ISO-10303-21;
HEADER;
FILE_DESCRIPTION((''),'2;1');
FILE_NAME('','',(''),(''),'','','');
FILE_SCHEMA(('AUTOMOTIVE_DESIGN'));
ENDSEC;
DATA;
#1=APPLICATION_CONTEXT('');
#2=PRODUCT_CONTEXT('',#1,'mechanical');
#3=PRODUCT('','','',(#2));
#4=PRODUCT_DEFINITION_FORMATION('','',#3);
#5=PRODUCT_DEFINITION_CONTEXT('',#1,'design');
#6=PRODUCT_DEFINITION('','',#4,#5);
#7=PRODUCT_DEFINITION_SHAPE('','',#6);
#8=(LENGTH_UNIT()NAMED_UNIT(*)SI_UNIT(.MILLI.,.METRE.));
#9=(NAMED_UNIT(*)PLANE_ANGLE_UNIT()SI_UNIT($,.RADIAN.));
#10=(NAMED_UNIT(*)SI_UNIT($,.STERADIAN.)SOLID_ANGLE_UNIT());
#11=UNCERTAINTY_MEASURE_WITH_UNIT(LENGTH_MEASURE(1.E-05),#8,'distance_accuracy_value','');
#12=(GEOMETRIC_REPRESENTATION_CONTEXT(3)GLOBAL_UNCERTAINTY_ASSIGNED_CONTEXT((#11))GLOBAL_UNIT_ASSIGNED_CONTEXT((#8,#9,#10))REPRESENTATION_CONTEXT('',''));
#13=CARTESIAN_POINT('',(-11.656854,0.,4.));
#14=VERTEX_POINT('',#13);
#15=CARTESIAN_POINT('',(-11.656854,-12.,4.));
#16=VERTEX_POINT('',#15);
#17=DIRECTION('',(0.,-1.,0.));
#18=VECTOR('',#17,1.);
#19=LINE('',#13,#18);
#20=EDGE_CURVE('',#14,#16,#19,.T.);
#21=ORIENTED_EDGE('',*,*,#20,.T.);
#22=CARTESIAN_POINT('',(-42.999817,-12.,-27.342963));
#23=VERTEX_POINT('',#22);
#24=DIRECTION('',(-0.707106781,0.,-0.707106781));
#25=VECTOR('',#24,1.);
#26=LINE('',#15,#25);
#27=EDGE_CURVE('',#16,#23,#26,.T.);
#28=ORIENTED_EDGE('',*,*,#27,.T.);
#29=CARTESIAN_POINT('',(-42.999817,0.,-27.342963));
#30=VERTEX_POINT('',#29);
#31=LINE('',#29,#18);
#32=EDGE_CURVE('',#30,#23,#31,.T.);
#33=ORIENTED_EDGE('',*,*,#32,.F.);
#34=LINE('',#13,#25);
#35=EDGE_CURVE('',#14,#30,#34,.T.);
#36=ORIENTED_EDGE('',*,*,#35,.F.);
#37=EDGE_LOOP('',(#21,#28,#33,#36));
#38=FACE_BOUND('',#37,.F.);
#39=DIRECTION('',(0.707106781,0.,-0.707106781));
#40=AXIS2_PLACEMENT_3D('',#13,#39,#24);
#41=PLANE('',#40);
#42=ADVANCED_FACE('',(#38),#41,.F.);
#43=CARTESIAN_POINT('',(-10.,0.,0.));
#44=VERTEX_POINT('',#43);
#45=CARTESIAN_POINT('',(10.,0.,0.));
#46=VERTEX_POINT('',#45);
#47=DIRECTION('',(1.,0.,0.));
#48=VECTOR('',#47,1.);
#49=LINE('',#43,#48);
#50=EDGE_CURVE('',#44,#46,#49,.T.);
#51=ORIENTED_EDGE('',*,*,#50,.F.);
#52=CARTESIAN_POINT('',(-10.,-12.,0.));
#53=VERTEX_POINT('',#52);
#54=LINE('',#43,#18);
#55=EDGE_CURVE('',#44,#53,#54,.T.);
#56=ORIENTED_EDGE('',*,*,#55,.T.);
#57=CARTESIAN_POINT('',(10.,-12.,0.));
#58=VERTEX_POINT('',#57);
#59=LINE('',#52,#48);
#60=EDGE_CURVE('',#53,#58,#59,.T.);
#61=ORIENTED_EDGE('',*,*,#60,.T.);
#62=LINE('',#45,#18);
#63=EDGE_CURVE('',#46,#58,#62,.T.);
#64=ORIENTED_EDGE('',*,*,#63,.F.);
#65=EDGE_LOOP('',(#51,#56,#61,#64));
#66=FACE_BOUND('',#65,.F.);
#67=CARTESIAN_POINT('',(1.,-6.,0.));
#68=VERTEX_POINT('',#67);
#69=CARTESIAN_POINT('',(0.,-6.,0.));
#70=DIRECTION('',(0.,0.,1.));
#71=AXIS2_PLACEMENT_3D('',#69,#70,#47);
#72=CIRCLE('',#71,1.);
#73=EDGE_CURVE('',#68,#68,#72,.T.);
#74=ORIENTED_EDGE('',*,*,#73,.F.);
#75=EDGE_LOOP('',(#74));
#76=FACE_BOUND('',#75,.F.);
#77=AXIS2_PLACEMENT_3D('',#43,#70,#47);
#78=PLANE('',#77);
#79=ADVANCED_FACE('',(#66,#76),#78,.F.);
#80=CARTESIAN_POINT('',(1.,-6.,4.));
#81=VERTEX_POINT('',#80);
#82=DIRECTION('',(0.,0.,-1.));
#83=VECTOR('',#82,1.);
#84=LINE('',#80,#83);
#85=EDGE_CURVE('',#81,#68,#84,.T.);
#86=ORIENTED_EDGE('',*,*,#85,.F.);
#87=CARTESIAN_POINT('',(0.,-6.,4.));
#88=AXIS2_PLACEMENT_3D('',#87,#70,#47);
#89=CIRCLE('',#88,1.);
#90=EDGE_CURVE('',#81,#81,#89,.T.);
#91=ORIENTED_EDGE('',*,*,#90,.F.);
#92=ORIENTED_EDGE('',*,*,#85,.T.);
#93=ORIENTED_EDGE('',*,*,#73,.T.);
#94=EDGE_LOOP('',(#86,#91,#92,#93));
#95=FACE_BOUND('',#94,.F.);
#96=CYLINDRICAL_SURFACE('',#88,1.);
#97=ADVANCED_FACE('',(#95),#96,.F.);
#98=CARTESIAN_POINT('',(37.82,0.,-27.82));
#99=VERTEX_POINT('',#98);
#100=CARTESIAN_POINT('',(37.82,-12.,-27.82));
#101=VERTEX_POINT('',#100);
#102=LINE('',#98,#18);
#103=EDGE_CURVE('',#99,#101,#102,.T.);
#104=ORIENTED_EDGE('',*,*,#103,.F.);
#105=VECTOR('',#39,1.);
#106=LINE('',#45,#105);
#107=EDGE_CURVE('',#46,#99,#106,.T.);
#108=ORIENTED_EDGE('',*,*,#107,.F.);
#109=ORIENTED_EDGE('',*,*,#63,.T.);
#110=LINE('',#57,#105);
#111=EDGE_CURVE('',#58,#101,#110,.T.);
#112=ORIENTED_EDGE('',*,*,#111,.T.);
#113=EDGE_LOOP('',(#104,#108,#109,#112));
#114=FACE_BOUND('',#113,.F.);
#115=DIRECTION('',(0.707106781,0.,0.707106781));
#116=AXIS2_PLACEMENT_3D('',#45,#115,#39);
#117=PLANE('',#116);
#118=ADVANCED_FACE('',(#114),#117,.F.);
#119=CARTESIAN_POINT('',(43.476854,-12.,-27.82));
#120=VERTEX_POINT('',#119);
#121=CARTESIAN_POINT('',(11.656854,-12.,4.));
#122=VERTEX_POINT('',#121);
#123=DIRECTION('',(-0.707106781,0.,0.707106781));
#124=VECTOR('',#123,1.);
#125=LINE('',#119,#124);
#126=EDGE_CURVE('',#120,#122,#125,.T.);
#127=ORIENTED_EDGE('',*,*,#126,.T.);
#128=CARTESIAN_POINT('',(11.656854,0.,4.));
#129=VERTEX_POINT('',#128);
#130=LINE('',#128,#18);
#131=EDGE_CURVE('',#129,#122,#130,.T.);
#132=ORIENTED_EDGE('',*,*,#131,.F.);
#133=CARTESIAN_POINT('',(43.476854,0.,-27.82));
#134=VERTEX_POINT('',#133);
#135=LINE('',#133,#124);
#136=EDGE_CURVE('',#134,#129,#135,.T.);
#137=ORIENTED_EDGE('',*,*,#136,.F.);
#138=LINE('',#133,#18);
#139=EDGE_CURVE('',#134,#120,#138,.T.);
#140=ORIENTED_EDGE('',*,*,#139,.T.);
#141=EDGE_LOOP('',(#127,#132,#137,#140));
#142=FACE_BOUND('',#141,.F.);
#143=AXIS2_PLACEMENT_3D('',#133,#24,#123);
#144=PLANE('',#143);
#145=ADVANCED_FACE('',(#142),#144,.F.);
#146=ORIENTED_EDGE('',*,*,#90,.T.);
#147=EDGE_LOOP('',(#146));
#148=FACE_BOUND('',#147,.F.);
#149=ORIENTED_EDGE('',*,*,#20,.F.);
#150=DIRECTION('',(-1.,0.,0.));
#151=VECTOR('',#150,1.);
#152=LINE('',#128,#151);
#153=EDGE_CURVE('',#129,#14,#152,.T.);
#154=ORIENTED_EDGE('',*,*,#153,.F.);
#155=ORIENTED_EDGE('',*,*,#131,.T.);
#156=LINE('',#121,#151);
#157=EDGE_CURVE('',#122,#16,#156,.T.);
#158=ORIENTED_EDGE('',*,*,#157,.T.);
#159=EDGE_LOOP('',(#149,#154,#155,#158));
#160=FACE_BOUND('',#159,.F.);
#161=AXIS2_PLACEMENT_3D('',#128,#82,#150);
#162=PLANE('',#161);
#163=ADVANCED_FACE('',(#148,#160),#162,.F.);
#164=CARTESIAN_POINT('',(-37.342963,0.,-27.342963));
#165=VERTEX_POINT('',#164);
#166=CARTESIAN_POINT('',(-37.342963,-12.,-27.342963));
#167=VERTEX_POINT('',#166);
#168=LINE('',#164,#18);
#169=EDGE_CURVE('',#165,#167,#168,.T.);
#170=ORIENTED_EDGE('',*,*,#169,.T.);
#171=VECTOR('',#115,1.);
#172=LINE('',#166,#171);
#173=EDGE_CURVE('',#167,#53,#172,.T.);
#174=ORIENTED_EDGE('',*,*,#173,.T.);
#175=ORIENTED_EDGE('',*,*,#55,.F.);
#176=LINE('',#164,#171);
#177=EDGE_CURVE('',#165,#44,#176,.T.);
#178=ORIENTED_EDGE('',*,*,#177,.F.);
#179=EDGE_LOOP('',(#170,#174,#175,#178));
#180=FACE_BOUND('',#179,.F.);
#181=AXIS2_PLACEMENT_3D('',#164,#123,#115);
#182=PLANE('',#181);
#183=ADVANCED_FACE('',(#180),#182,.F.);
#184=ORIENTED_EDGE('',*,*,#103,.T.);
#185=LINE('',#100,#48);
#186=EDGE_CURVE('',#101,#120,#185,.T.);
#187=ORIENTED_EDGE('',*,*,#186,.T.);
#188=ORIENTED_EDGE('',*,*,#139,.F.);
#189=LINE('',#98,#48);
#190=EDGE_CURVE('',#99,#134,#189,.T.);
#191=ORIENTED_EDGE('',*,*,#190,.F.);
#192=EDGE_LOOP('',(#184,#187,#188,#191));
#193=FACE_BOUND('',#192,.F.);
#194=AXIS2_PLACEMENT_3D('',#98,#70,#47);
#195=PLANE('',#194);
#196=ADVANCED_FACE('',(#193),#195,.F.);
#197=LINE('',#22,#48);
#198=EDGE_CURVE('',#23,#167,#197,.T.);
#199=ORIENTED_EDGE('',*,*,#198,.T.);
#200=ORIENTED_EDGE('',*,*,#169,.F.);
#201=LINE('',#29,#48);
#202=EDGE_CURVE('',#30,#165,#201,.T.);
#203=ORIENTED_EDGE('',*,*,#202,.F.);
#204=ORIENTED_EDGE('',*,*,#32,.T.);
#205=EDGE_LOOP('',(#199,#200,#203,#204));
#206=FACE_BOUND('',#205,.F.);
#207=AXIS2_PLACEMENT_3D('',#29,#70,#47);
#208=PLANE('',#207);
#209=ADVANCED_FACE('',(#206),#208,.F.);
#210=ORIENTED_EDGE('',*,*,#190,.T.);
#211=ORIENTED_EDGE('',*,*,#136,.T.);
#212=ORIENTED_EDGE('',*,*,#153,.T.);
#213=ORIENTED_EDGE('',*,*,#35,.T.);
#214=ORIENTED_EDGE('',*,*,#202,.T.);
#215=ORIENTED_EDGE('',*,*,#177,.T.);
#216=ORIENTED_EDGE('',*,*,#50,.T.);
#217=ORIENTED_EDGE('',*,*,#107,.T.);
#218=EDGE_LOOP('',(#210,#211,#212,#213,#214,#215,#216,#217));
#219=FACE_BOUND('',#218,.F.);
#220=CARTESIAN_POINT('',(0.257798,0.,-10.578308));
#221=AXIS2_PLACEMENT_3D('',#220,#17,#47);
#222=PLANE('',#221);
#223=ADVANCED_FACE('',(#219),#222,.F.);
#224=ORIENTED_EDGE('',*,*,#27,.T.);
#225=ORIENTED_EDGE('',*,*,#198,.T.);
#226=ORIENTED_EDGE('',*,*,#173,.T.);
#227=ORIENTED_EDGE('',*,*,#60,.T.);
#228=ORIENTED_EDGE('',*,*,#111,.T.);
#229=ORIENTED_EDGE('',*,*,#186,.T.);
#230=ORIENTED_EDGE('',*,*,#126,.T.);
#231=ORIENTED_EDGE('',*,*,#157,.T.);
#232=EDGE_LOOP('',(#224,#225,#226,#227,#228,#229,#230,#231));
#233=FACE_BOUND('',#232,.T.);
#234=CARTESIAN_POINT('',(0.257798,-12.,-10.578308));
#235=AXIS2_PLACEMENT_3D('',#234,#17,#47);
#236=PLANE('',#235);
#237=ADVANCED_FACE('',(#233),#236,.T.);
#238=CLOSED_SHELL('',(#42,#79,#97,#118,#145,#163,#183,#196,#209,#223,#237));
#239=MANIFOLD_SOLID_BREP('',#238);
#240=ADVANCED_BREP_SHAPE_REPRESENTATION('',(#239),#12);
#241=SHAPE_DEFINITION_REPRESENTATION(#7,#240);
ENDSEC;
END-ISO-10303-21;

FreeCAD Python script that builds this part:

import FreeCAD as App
import Part
import Sketcher
Q = App.Units.Quantity

doc = App.newDocument("Part")
params = doc.addObject("Spreadsheet::Sheet", "Params")
for row, (alias, value) in enumerate([
    ("sketch1_width", "20 mm"),
    ("pad1_length", "12 mm"),
    ("sketch2_diameter", "2 mm"),
], start=1):
    params.set(f"A{row}", alias)
    params.set(f"B{row}", "=" + value)
    params.setAlias(f"B{row}", alias)

body = doc.addObject("PartDesign::Body", "Body")

sketch1 = body.newObject("Sketcher::SketchObject", "Sketch")
sketch1.AttachmentSupport = (doc.getObject("XZ_Plane"), [""])
sketch1.MapMode = "FlatFace"
sketch1.addGeometry([
    Part.LineSegment(App.Vector(-37.342963, -27.342963, 0), App.Vector(-10, 0, 0)),
    Part.LineSegment(App.Vector(-10, 0, 0), App.Vector(10, 0, 0)),
    Part.LineSegment(App.Vector(10, 0, 0), App.Vector(37.82, -27.82, 0)),
    Part.LineSegment(App.Vector(37.82, -27.82, 0), App.Vector(43.476854, -27.82, 0)),
    Part.LineSegment(App.Vector(43.476854, -27.82, 0), App.Vector(11.656854, 4, 0)),
    Part.LineSegment(App.Vector(11.656854, 4, 0), App.Vector(-11.656854, 4, 0)),
    Part.LineSegment(App.Vector(-11.656854, 4, 0), App.Vector(-42.999817, -27.342963, 0)),
    Part.LineSegment(App.Vector(-42.999817, -27.342963, 0), App.Vector(-37.342963, -27.342963, 0)),
], False)
sketch1.addConstraint([
    Sketcher.Constraint("Coincident", 0, 2, 1, 1),
    Sketcher.Constraint("Coincident", 1, 2, 2, 1),
    Sketcher.Constraint("Coincident", 2, 2, 3, 1),
    Sketcher.Constraint("Coincident", 3, 2, 4, 1),
    Sketcher.Constraint("Coincident", 4, 2, 5, 1),
    Sketcher.Constraint("Coincident", 5, 2, 6, 1),
    Sketcher.Constraint("Coincident", 6, 2, 7, 1),
    Sketcher.Constraint("Coincident", 7, 2, 0, 1),
    Sketcher.Constraint("Horizontal", 1),
    Sketcher.Constraint("Horizontal", 3),
    Sketcher.Constraint("Horizontal", 5),
    Sketcher.Constraint("Horizontal", 7),
    Sketcher.Constraint("Symmetric", 0, 2, 1, 2, -1, 1),
    Sketcher.Constraint("Perpendicular", 0, 2),
    Sketcher.Constraint("Parallel", 2, 4),
    Sketcher.Constraint("Perpendicular", 4, 6),
    Sketcher.Constraint("Equal", 3, 7),
    Sketcher.Constraint("DistanceX", 1, 1, 1, 2, 20.0),
    Sketcher.Constraint("Angle", 0, Q("45 deg")),
    Sketcher.Constraint("DistanceY", -1, 1, 4, 2, 4.0),
    Sketcher.Constraint("DistanceX", -1, 1, 2, 2, 37.82),
    Sketcher.Constraint("Distance", 0, 38.668789),
    Sketcher.Constraint("DistanceX", 3, 1, 3, 2, 5.656854),
])
sketch1.setExpression("Constraints[17]", "Params.sketch1_width")
pad1 = body.newObject("PartDesign::Pad", "Pad")
pad1.Profile = sketch1
pad1.setExpression("Length", "Params.pad1_length")

sketch2 = body.newObject("Sketcher::SketchObject", "Sketch001")
sketch2.AttachmentSupport = (doc.getObject("XY_Plane"), [""])
sketch2.MapMode = "FlatFace"
sketch2.AttachmentOffset = App.Placement(App.Vector(0, 0, 4), App.Rotation())
sketch2.addGeometry(Part.Circle(App.Vector(0, -6, 0), App.Vector(0, 0, 1), 1), False)
sketch2.addConstraint([
    Sketcher.Constraint("PointOnObject", 0, 3, -2),
    Sketcher.Constraint("Diameter", 0, 2.0),
    Sketcher.Constraint("DistanceY", 0, 3, -1, 1, 6.0),
])
sketch2.setExpression("Constraints[1]", "Params.sketch2_diameter")
pocket1 = body.newObject("PartDesign::Pocket", "Pocket")
pocket1.Profile = sketch2
pocket1.Type = "ThroughAll"

doc.recompute()
